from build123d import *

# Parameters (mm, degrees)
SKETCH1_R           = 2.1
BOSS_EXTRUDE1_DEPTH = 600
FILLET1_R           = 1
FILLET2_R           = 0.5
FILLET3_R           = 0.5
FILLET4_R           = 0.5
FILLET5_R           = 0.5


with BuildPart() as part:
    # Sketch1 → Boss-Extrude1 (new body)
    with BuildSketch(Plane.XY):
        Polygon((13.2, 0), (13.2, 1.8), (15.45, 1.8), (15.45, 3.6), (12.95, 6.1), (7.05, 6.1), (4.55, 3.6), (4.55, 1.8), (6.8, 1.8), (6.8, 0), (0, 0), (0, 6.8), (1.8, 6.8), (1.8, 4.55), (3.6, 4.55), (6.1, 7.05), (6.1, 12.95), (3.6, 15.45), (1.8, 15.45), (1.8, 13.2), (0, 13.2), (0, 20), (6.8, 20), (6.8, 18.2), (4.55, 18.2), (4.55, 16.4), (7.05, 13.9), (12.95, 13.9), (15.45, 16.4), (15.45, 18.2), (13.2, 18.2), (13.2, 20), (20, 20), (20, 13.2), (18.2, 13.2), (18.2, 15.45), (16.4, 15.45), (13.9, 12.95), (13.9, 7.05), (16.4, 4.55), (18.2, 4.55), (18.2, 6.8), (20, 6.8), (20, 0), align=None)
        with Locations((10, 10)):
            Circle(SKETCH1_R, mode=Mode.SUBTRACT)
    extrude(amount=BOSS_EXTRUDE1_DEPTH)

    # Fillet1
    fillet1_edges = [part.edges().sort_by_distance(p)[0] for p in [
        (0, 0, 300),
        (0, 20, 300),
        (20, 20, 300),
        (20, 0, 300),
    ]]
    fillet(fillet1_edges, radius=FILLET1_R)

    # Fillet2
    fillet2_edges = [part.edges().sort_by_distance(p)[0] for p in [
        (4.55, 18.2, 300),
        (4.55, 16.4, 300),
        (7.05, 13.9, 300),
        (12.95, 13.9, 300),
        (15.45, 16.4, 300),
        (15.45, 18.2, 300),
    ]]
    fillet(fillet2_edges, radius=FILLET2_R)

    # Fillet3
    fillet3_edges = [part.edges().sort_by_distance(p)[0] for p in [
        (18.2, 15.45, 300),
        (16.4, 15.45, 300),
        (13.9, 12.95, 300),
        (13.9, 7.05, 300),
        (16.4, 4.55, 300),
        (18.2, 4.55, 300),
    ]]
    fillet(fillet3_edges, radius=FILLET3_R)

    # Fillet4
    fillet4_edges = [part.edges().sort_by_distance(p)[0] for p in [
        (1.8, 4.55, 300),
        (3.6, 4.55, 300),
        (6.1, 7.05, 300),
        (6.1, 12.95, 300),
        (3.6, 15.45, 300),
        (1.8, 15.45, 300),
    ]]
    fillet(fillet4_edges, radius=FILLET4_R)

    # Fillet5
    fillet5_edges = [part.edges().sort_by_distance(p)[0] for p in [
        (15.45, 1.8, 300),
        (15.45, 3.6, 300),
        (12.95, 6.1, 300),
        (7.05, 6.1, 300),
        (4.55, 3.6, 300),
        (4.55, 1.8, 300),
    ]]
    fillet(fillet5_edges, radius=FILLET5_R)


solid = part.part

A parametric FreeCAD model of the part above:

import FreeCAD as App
import Part
import Sketcher
from FreeCAD import Vector
Q = App.Units.Quantity


def edges_at(feature, points):
    """Names of the edges that pass closest to the given points."""
    edges = feature.Shape.Edges
    near = lambda p: min(range(len(edges)), key=lambda i: edges[i].distToShape(Part.Vertex(*p))[0])
    return sorted({f"Edge{near(p) + 1}" for p in points})

doc = App.newDocument("Part")
body = doc.addObject("PartDesign::Body", "Body")

# Sketch on XY plane
sketch1 = body.newObject("Sketcher::SketchObject", "Sketch")
sketch1.AttachmentSupport = (doc.getObject("XY_Plane"), [""])
sketch1.MapMode = "FlatFace"
sketch1.addGeometry(Part.LineSegment(Vector(13.2, 1.8, 0), Vector(13.2, 0, 0)), False)
sketch1.addGeometry(Part.LineSegment(Vector(13.2, 0, 0), Vector(20, 0, 0)), False)
sketch1.addGeometry(Part.LineSegment(Vector(20, 0, 0), Vector(20, 6.8, 0)), False)
sketch1.addGeometry(Part.LineSegment(Vector(20, 6.8, 0), Vector(18.2, 6.8, 0)), False)
sketch1.addGeometry(Part.LineSegment(Vector(18.2, 6.8, 0), Vector(18.2, 4.5, 0)), False)
sketch1.addGeometry(Part.LineSegment(Vector(18.2, 4.5, 0), Vector(16.4, 4.5, 0)), False)
sketch1.addGeometry(Part.LineSegment(Vector(16.4, 4.5, 0), Vector(13.9, 7, 0)), False)
sketch1.addGeometry(Part.LineSegment(Vector(13.9, 7, 0), Vector(13.9, 12.9, 0)), False)
sketch1.addGeometry(Part.LineSegment(Vector(13.9, 12.9, 0), Vector(16.4, 15.4, 0)), False)
sketch1.addGeometry(Part.LineSegment(Vector(16.4, 15.4, 0), Vector(18.2, 15.4, 0)), False)
sketch1.addGeometry(Part.LineSegment(Vector(18.2, 15.4, 0), Vector(18.2, 13.2, 0)), False)
sketch1.addGeometry(Part.LineSegment(Vector(18.2, 13.2, 0), Vector(20, 13.2, 0)), False)
sketch1.addGeometry(Part.LineSegment(Vector(20, 13.2, 0), Vector(20, 20, 0)), False)
sketch1.addGeometry(Part.LineSegment(Vector(20, 20, 0), Vector(13.2, 20, 0)), False)
sketch1.addGeometry(Part.LineSegment(Vector(13.2, 20, 0), Vector(13.2, 18.2, 0)), False)
sketch1.addGeometry(Part.LineSegment(Vector(13.2, 18.2, 0), Vector(15.4, 18.2, 0)), False)
sketch1.addGeometry(Part.LineSegment(Vector(15.4, 18.2, 0), Vector(15.4, 16.4, 0)), False)
sketch1.addGeometry(Part.LineSegment(Vector(15.4, 16.4, 0), Vector(12.9, 13.9, 0)), False)
sketch1.addGeometry(Part.LineSegment(Vector(12.9, 13.9, 0), Vector(7, 13.9, 0)), False)
sketch1.addGeometry(Part.LineSegment(Vector(7, 13.9, 0), Vector(4.5, 16.4, 0)), False)
sketch1.addGeometry(Part.LineSegment(Vector(4.5, 16.4, 0), Vector(4.5, 18.2, 0)), False)
sketch1.addGeometry(Part.LineSegment(Vector(4.5, 18.2, 0), Vector(6.8, 18.2, 0)), False)
sketch1.addGeometry(Part.LineSegment(Vector(6.8, 18.2, 0), Vector(6.8, 20, 0)), False)
sketch1.addGeometry(Part.LineSegment(Vector(6.8, 20, 0), Vector(0, 20, 0)), False)
sketch1.addGeometry(Part.LineSegment(Vector(0, 20, 0), Vector(0, 13.2, 0)), False)
sketch1.addGeometry(Part.LineSegment(Vector(0, 13.2, 0), Vector(1.8, 13.2, 0)), False)
sketch1.addGeometry(Part.LineSegment(Vector(1.8, 13.2, 0), Vector(1.8, 15.4, 0)), False)
sketch1.addGeometry(Part.LineSegment(Vector(1.8, 15.4, 0), Vector(3.6, 15.4, 0)), False)
sketch1.addGeometry(Part.LineSegment(Vector(3.6, 15.4, 0), Vector(6.1, 12.9, 0)), False)
sketch1.addGeometry(Part.LineSegment(Vector(6.1, 12.9, 0), Vector(6.1, 7, 0)), False)
sketch1.addGeometry(Part.LineSegment(Vector(6.1, 7, 0), Vector(3.6, 4.5, 0)), False)
sketch1.addGeometry(Part.LineSegment(Vector(3.6, 4.5, 0), Vector(1.8, 4.5, 0)), False)
sketch1.addGeometry(Part.LineSegment(Vector(1.8, 4.5, 0), Vector(1.8, 6.8, 0)), False)
sketch1.addGeometry(Part.LineSegment(Vector(1.8, 6.8, 0), Vector(0, 6.8, 0)), False)
sketch1.addGeometry(Part.LineSegment(Vector(0, 6.8, 0), Vector(0, 0, 0)), False)
sketch1.addGeometry(Part.LineSegment(Vector(0, 0, 0), Vector(6.8, 0, 0)), False)
sketch1.addGeometry(Part.LineSegment(Vector(6.8, 0, 0), Vector(6.8, 1.8, 0)), False)
sketch1.addGeometry(Part.LineSegment(Vector(6.8, 1.8, 0), Vector(4.5, 1.8, 0)), False)
sketch1.addGeometry(Part.LineSegment(Vector(4.5, 1.8, 0), Vector(4.5, 3.6, 0)), False)
sketch1.addGeometry(Part.LineSegment(Vector(4.5, 3.6, 0), Vector(7, 6.1, 0)), False)
sketch1.addGeometry(Part.LineSegment(Vector(7, 6.1, 0), Vector(12.9, 6.1, 0)), False)
sketch1.addGeometry(Part.LineSegment(Vector(12.9, 6.1, 0), Vector(15.4, 3.6, 0)), False)
sketch1.addGeometry(Part.LineSegment(Vector(15.4, 3.6, 0), Vector(15.4, 1.8, 0)), False)
sketch1.addGeometry(Part.LineSegment(Vector(15.4, 1.8, 0), Vector(13.2, 1.8, 0)), False)
sketch1.addGeometry(Part.Circle(Vector(10, 10, 0), Vector(0, 0, 1), 2.1), False)
sketch1.addConstraint(Sketcher.Constraint("Coincident", 0, 2, 1, 1))
sketch1.addConstraint(Sketcher.Constraint("Coincident", 1, 2, 2, 1))
sketch1.addConstraint(Sketcher.Constraint("Coincident", 2, 2, 3, 1))
sketch1.addConstraint(Sketcher.Constraint("Coincident", 3, 2, 4, 1))
sketch1.addConstraint(Sketcher.Constraint("Coincident", 4, 2, 5, 1))
sketch1.addConstraint(Sketcher.Constraint("Coincident", 5, 2, 6, 1))
sketch1.addConstraint(Sketcher.Constraint("Coincident", 6, 2, 7, 1))
sketch1.addConstraint(Sketcher.Constraint("Coincident", 7, 2, 8, 1))
sketch1.addConstraint(Sketcher.Constraint("Coincident", 8, 2, 9, 1))
sketch1.addConstraint(Sketcher.Constraint("Coincident", 9, 2, 10, 1))
sketch1.addConstraint(Sketcher.Constraint("Coincident", 10, 2, 11, 1))
sketch1.addConstraint(Sketcher.Constraint("Coincident", 11, 2, 12, 1))
sketch1.addConstraint(Sketcher.Constraint("Coincident", 12, 2, 13, 1))
sketch1.addConstraint(Sketcher.Constraint("Coincident", 13, 2, 14, 1))
sketch1.addConstraint(Sketcher.Constraint("Coincident", 14, 2, 15, 1))
sketch1.addConstraint(Sketcher.Constraint("Coincident", 15, 2, 16, 1))
sketch1.addConstraint(Sketcher.Constraint("Coincident", 16, 2, 17, 1))
sketch1.addConstraint(Sketcher.Constraint("Coincident", 17, 2, 18, 1))
sketch1.addConstraint(Sketcher.Constraint("Coincident", 18, 2, 19, 1))
sketch1.addConstraint(Sketcher.Constraint("Coincident", 19, 2, 20, 1))
sketch1.addConstraint(Sketcher.Constraint("Coincident", 20, 2, 21, 1))
sketch1.addConstraint(Sketcher.Constraint("Coincident", 21, 2, 22, 1))
sketch1.addConstraint(Sketcher.Constraint("Coincident", 22, 2, 23, 1))
sketch1.addConstraint(Sketcher.Constraint("Coincident", 23, 2, 24, 1))
sketch1.addConstraint(Sketcher.Constraint("Coincident", 24, 2, 25, 1))
sketch1.addConstraint(Sketcher.Constraint("Coincident", 25, 2, 26, 1))
sketch1.addConstraint(Sketcher.Constraint("Coincident", 26, 2, 27, 1))
sketch1.addConstraint(Sketcher.Constraint("Coincident", 27, 2, 28, 1))
sketch1.addConstraint(Sketcher.Constraint("Coincident", 28, 2, 29, 1))
sketch1.addConstraint(Sketcher.Constraint("Coincident", 29, 2, 30, 1))
sketch1.addConstraint(Sketcher.Constraint("Coincident", 30, 2, 31, 1))
sketch1.addConstraint(Sketcher.Constraint("Coincident", 31, 2, 32, 1))
sketch1.addConstraint(Sketcher.Constraint("Coincident", 32, 2, 33, 1))
sketch1.addConstraint(Sketcher.Constraint("Coincident", 33, 2, 34, 1))
sketch1.addConstraint(Sketcher.Constraint("Coincident", 34, 2, 35, 1))
sketch1.addConstraint(Sketcher.Constraint("Coincident", 35, 2, 36, 1))
sketch1.addConstraint(Sketcher.Constraint("Coincident", 36, 2, 37, 1))
sketch1.addConstraint(Sketcher.Constraint("Coincident", 37, 2, 38, 1))
sketch1.addConstraint(Sketcher.Constraint("Coincident", 38, 2, 39, 1))
sketch1.addConstraint(Sketcher.Constraint("Coincident", 39, 2, 40, 1))
sketch1.addConstraint(Sketcher.Constraint("Coincident", 40, 2, 41, 1))
sketch1.addConstraint(Sketcher.Constraint("Coincident", 41, 2, 42, 1))
sketch1.addConstraint(Sketcher.Constraint("Coincident", 42, 2, 43, 1))
sketch1.addConstraint(Sketcher.Constraint("Coincident", 43, 2, 0, 1))
sketch1.addConstraint(Sketcher.Constraint("Vertical", 0))
sketch1.addConstraint(Sketcher.Constraint("Horizontal", 1))
sketch1.addConstraint(Sketcher.Constraint("Vertical", 2))
sketch1.addConstraint(Sketcher.Constraint("Horizontal", 3))
sketch1.addConstraint(Sketcher.Constraint("Vertical", 4))
sketch1.addConstraint(Sketcher.Constraint("Horizontal", 5))
sketch1.addConstraint(Sketcher.Constraint("Vertical", 7))
sketch1.addConstraint(Sketcher.Constraint("Horizontal", 9))
sketch1.addConstraint(Sketcher.Constraint("Vertical", 10))
sketch1.addConstraint(Sketcher.Constraint("Horizontal", 11))
sketch1.addConstraint(Sketcher.Constraint("Vertical", 12))
sketch1.addConstraint(Sketcher.Constraint("Horizontal", 13))
sketch1.addConstraint(Sketcher.Constraint("Vertical", 14))
sketch1.addConstraint(Sketcher.Constraint("Horizontal", 15))
sketch1.addConstraint(Sketcher.Constraint("Vertical", 16))
sketch1.addConstraint(Sketcher.Constraint("Horizontal", 18))
sketch1.addConstraint(Sketcher.Constraint("Vertical", 20))
sketch1.addConstraint(Sketcher.Constraint("Horizontal", 21))
sketch1.addConstraint(Sketcher.Constraint("Vertical", 22))
sketch1.addConstraint(Sketcher.Constraint("Horizontal", 23))
sketch1.addConstraint(Sketcher.Constraint("Vertical", 24))
sketch1.addConstraint(Sketcher.Constraint("Horizontal", 25))
sketch1.addConstraint(Sketcher.Constraint("Vertical", 26))
sketch1.addConstraint(Sketcher.Constraint("Horizontal", 27))
sketch1.addConstraint(Sketcher.Constraint("Vertical", 29))
sketch1.addConstraint(Sketcher.Constraint("Horizontal", 31))
sketch1.addConstraint(Sketcher.Constraint("Vertical", 32))
sketch1.addConstraint(Sketcher.Constraint("Horizontal", 33))
sketch1.addConstraint(Sketcher.Constraint("Vertical", 34))
sketch1.addConstraint(Sketcher.Constraint("Horizontal", 35))
sketch1.addConstraint(Sketcher.Constraint("Vertical", 36))
sketch1.addConstraint(Sketcher.Constraint("Horizontal", 37))
sketch1.addConstraint(Sketcher.Constraint("Vertical", 38))
sketch1.addConstraint(Sketcher.Constraint("Horizontal", 40))
sketch1.addConstraint(Sketcher.Constraint("Vertical", 42))
sketch1.addConstraint(Sketcher.Constraint("Horizontal", 43))
sketch1.addConstraint(Sketcher.Constraint("Coincident", 34, 2, -1, 1))
sketch1.addConstraint(Sketcher.Constraint("PointOnObject", 0, 2, -1))
sketch1.addConstraint(Sketcher.Constraint("PointOnObject", 23, 2, -2))
sketch1.addConstraint(Sketcher.Constraint("Perpendicular", 6, 8))
sketch1.addConstraint(Sketcher.Constraint("Parallel", 8, 17))
sketch1.addConstraint(Sketcher.Constraint("Perpendicular", 17, 19))
sketch1.addConstraint(Sketcher.Constraint("Parallel", 19, 28))
sketch1.addConstraint(Sketcher.Constraint("Perpendicular", 28, 30))
sketch1.addConstraint(Sketcher.Constraint("Parallel", 30, 39))
sketch1.addConstraint(Sketcher.Constraint("Perpendicular", 39, 41))
sketch1.addConstraint(Sketcher.Constraint("Horizontal", 16, 2, 19, 2))
sketch1.addConstraint(Sketcher.Constraint("Horizontal", 15, 2, 20, 2))
sketch1.addConstraint(Sketcher.Constraint("Horizontal", 13, 2, 22, 2))
sketch1.addConstraint(Sketcher.Constraint("Horizontal", 11, 2, 24, 2))
sketch1.addConstraint(Sketcher.Constraint("Horizontal", 9, 2, 26, 2))
sketch1.addConstraint(Sketcher.Constraint("Horizontal", 7, 2, 28, 2))
sketch1.addConstraint(Sketcher.Constraint("Horizontal", 6, 2, 29, 2))
sketch1.addConstraint(Sketcher.Constraint("Horizontal", 5, 2, 30, 2))
sketch1.addConstraint(Sketcher.Constraint("Horizontal", 3, 2, 32, 2))
sketch1.addConstraint(Sketcher.Constraint("Horizontal", 38, 2, 41, 2))
sketch1.addConstraint(Sketcher.Constraint("Horizontal", 37, 2, 42, 2))
sketch1.addConstraint(Sketcher.Constraint("Vertical", 5, 2, 8, 2))
sketch1.addConstraint(Sketcher.Constraint("Vertical", 4, 2, 9, 2))
sketch1.addConstraint(Sketcher.Constraint("Vertical", 2, 2, 11, 2))
sketch1.addConstraint(Sketcher.Constraint("Vertical", 0, 2, 13, 2))
sketch1.addConstraint(Sketcher.Constraint("Vertical", 27, 2, 30, 2))
sketch1.addConstraint(Sketcher.Constraint("Vertical", 26, 2, 31, 2))
sketch1.addConstraint(Sketcher.Constraint("Vertical", 22, 2, 35, 2))
sketch1.addConstraint(Sketcher.Constraint("Vertical", 20, 2, 37, 2))
sketch1.addConstraint(Sketcher.Constraint("Vertical", 18, 2, 39, 2))
sketch1.addConstraint(Sketcher.Constraint("Vertical", 17, 2, 40, 2))
sketch1.addConstraint(Sketcher.Constraint("Equal", 3, 5))
sketch1.addConstraint(Sketcher.Constraint("Equal", 15, 21))
sketch1.addConstraint(Sketcher.Constraint("Equal", 13, 23))
sketch1.addConstraint(Sketcher.Constraint("Equal", 11, 25))
sketch1.addConstraint(Sketcher.Constraint("Equal", 25, 27))
sketch1.addConstraint(Sketcher.Constraint("Equal", 33, 0))
sketch1.addConstraint(Sketcher.Constraint("Equal", 35, 2))
sketch1.addConstraint(Sketcher.Constraint("Equal", 43, 4))
sketch1.addConstraint(Sketcher.Constraint("Equal", 40, 7))
sketch1.addConstraint(Sketcher.Constraint("Equal", 4, 10))
sketch1.addConstraint(Sketcher.Constraint("Equal", 2, 12))
sketch1.addConstraint(Sketcher.Constraint("Equal", 0, 14))
sketch1.addConstraint(Sketcher.Constraint("Equal", 14, 16))
sketch1.addConstraint(Sketcher.Constraint("Equal", 36, 38))
sketch1.addConstraint(Sketcher.Constraint("Equal", 8, 17))
sketch1.addConstraint(Sketcher.Constraint("Diameter", 44, Q("4.2 mm")))
sketch1.addConstraint(Sketcher.Constraint("DistanceX", 1, 1, 1, 2, Q("6.8 mm")))
sketch1.addConstraint(Sketcher.Constraint("DistanceX", 3, 2, 3, 1, Q("1.8 mm")))
sketch1.addConstraint(Sketcher.Constraint("DistanceX", 18, 2, 18, 1, Q("5.9 mm")))
sketch1.addConstraint(Sketcher.Constraint("DistanceX", -1, 1, 44, 3, Q("10 mm")))
sketch1.addConstraint(Sketcher.Constraint("DistanceY", -1, 1, 44, 3, Q("10 mm")))
sketch1.addConstraint(Sketcher.Constraint("DistanceX", -1, 1, 1, 2, Q("20 mm")))
sketch1.addConstraint(Sketcher.Constraint("DistanceX", 15, 1, 15, 2, Q("2.25 mm")))
pad1 = body.newObject("PartDesign::Pad", "Pad")
pad1.Profile = sketch1
pad1.Length = 600
doc.recompute()

fillet = body.newObject("PartDesign::Fillet", "Fillet")
fillet.Base = (pad1, edges_at(pad1, [
    (0, 0, 300),
    (0, 20, 300),
    (20, 20, 300),
    (20, 0, 300),
]))
fillet.Radius = 1
doc.recompute()

fillet2 = body.newObject("PartDesign::Fillet", "Fillet001")
fillet2.Base = (fillet, edges_at(fillet, [
    (4.55, 18.2, 300),
    (4.55, 16.4, 300),
    (7.05, 13.9, 300),
    (12.95, 13.9, 300),
    (15.45, 16.4, 300),
    (15.45, 18.2, 300),
]))
fillet2.Radius = 0.5
doc.recompute()

fillet3 = body.newObject("PartDesign::Fillet", "Fillet002")
fillet3.Base = (fillet2, edges_at(fillet2, [
    (18.2, 15.45, 300),
    (16.4, 15.45, 300),
    (13.9, 12.95, 300),
    (13.9, 7.05, 300),
    (16.4, 4.55, 300),
    (18.2, 4.55, 300),
]))
fillet3.Radius = 0.5
doc.recompute()

fillet4 = body.newObject("PartDesign::Fillet", "Fillet003")
fillet4.Base = (fillet3, edges_at(fillet3, [
    (1.8, 4.55, 300),
    (3.6, 4.55, 300),
    (6.1, 7.05, 300),
    (6.1, 12.95, 300),
    (3.6, 15.45, 300),
    (1.8, 15.45, 300),
]))
fillet4.Radius = 0.5
doc.recompute()

fillet5 = body.newObject("PartDesign::Fillet", "Fillet004")
fillet5.Base = (fillet4, edges_at(fillet4, [
    (15.45, 1.8, 300),
    (15.45, 3.6, 300),
    (12.95, 6.1, 300),
    (7.05, 6.1, 300),
    (4.55, 3.6, 300),
    (4.55, 1.8, 300),
]))
fillet5.Radius = 0.5

doc.recompute()
